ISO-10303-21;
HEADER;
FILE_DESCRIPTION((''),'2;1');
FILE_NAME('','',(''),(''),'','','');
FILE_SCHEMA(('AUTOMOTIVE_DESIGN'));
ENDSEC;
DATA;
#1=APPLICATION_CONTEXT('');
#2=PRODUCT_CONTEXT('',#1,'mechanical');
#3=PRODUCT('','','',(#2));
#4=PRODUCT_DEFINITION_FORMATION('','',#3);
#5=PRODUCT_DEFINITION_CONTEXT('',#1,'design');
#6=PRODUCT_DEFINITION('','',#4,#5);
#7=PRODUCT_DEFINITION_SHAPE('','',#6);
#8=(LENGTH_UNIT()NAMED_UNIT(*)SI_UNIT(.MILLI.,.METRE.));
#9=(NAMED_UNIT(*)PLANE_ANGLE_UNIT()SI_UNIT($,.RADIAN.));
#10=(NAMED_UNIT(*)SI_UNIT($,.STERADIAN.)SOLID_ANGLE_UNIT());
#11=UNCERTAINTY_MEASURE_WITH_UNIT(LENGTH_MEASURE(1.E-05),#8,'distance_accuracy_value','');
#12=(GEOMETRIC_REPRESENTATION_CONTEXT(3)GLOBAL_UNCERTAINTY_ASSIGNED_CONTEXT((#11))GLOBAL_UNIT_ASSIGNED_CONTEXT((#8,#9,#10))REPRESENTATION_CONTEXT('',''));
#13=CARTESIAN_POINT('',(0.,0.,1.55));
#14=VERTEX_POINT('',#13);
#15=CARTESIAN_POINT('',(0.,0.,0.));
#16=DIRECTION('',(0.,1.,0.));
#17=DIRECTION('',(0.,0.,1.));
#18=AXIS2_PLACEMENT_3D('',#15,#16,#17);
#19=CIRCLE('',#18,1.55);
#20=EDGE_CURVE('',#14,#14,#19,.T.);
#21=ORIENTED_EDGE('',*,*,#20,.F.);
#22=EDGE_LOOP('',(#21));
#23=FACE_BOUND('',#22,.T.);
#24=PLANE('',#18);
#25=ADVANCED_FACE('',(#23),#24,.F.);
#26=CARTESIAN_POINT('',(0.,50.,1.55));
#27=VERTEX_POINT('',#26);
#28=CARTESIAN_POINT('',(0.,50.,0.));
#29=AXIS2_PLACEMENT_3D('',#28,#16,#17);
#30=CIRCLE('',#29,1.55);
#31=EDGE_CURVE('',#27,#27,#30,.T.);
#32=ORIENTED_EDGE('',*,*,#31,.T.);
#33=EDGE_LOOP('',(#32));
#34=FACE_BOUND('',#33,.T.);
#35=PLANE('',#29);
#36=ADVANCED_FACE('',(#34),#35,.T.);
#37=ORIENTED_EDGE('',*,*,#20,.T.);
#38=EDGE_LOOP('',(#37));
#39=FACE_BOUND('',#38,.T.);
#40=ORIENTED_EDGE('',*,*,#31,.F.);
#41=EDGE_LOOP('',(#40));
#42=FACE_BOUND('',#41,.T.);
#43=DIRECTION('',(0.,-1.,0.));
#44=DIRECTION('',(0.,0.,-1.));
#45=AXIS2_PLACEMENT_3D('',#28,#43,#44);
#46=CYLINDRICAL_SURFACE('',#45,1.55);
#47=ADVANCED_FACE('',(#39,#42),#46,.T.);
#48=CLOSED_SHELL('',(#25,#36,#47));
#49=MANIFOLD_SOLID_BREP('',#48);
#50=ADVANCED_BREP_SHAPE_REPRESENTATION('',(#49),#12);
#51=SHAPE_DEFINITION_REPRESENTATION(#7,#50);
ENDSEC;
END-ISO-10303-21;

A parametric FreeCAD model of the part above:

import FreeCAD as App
import Part
import Sketcher

V = App.Vector
Q = App.Units.Quantity

doc = App.newDocument("Part")
body = doc.addObject("PartDesign::Body", "Body")

# Sketch on XZ plane
sketch1 = doc.addObject("Sketcher::SketchObject", "Sketch")
body.addObject(sketch1)
sketch1.AttachmentSupport = (doc.XZ_Plane, [""])
sketch1.MapMode = "FlatFace"
sketch1.addGeometry(Part.Circle(V(0, 0, 0), V(0, 0, 1), 1.55), False)
sketch1.addConstraint([
    Sketcher.Constraint("Coincident", 0, 3, -1, 1),
    Sketcher.Constraint("Diameter", 0, Q("3.1 mm")),
])
pad1 = doc.addObject("PartDesign::Pad", "Pad")
body.addObject(pad1)
pad1.Profile = sketch1
pad1.Length = 50
pad1.Reversed = True

doc.recompute()
